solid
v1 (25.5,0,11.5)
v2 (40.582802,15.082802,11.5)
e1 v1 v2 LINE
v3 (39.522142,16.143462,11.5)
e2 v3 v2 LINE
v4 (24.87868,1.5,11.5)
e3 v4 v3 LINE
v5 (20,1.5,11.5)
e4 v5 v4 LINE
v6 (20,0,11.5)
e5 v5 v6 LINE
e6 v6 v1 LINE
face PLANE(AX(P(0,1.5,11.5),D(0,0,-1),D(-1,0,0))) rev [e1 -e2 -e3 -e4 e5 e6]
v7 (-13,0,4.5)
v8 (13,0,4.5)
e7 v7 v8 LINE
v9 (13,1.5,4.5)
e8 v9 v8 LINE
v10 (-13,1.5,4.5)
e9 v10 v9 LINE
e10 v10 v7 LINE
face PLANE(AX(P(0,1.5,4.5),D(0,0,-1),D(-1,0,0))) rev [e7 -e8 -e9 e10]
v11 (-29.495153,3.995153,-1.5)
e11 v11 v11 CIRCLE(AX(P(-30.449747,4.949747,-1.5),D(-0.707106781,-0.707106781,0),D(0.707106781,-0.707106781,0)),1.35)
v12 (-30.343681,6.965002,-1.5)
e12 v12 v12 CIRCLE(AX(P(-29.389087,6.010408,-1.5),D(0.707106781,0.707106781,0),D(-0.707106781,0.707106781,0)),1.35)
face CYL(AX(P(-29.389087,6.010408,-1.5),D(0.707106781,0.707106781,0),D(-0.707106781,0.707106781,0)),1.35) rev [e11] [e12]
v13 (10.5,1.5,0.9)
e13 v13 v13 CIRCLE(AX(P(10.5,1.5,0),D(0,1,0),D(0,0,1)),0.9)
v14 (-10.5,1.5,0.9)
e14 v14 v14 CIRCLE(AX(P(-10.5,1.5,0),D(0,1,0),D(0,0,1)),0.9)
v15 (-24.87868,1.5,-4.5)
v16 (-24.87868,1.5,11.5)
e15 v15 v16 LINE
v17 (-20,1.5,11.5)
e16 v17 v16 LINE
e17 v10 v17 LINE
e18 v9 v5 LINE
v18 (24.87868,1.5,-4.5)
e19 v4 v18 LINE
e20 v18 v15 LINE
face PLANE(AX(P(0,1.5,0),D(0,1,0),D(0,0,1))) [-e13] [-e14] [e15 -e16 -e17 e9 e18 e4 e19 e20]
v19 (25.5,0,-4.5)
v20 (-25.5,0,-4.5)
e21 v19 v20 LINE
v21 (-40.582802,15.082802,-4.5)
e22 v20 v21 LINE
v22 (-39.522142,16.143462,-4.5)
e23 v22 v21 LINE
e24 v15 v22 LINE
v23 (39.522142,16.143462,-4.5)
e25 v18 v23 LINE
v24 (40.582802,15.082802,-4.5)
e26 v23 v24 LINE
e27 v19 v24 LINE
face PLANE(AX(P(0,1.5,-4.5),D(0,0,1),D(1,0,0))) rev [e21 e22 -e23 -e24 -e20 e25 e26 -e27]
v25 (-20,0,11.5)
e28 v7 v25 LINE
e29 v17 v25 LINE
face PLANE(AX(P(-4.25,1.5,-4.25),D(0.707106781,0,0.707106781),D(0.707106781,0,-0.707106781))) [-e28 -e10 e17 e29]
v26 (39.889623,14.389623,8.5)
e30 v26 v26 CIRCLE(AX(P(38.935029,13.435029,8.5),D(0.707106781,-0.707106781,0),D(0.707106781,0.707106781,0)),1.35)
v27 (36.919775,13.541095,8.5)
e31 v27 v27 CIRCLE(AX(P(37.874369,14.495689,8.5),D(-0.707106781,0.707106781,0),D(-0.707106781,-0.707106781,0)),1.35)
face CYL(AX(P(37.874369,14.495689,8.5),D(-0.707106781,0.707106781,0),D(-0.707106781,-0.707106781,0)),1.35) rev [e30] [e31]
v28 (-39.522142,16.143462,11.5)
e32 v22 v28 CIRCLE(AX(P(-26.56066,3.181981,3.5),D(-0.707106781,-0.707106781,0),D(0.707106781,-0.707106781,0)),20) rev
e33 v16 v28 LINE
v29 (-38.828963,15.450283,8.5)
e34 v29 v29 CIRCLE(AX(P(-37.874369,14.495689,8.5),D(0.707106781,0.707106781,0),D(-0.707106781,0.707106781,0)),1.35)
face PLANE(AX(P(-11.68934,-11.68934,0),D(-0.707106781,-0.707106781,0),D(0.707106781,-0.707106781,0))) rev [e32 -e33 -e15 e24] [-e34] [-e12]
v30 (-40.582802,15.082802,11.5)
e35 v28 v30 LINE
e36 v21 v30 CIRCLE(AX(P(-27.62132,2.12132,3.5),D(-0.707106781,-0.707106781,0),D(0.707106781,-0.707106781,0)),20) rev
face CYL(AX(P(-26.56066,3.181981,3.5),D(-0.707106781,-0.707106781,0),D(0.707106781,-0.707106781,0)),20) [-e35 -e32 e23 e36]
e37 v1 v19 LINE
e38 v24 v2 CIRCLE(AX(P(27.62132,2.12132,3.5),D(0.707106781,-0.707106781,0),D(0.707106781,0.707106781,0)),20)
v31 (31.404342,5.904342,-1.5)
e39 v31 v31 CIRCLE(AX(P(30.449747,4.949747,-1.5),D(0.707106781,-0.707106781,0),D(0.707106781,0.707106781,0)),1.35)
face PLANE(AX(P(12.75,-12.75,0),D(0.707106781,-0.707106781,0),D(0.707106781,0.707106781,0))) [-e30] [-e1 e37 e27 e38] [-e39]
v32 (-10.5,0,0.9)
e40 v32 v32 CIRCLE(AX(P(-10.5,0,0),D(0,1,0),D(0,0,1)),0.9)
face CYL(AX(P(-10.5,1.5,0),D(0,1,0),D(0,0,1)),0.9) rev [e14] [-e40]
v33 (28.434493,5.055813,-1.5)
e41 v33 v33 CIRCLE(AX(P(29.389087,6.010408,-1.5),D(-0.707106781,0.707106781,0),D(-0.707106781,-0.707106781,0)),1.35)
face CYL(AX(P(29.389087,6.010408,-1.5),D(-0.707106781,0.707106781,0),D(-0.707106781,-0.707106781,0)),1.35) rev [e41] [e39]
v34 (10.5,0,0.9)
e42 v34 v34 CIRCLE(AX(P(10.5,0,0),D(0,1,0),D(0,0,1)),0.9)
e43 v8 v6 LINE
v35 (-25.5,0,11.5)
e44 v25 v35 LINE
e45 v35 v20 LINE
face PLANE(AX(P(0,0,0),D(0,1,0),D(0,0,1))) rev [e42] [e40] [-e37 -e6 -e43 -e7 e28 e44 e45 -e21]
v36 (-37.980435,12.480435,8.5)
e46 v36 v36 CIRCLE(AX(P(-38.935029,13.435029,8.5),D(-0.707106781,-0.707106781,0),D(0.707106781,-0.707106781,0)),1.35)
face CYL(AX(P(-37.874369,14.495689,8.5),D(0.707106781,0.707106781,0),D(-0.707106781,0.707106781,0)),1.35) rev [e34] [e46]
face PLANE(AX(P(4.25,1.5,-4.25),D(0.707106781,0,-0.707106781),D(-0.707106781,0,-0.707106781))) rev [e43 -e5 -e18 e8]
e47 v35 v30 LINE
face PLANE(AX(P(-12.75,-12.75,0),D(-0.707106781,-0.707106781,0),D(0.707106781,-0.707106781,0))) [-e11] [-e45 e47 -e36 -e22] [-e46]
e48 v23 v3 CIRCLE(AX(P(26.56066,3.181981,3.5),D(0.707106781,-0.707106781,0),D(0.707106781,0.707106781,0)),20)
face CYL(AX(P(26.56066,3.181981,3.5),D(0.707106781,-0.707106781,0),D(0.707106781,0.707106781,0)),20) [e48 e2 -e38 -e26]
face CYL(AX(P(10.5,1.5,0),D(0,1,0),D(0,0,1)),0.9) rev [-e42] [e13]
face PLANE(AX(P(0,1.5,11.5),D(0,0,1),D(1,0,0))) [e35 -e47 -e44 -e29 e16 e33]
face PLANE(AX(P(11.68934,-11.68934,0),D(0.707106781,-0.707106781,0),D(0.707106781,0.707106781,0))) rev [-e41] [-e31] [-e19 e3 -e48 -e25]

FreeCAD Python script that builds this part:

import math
import FreeCAD as App
import Part
import Sketcher
from FreeCAD import Vector
Q = App.Units.Quantity

doc = App.newDocument("Part")
body = doc.addObject("PartDesign::Body", "Body")

# Sketch on XZ plane
sketch1 = body.newObject("Sketcher::SketchObject", "Sketch")
sketch1.AttachmentSupport = (doc.getObject("XZ_Plane"), [""])
sketch1.MapMode = "FlatFace"
sketch1.addGeometry([
    Part.LineSegment(Vector(-26, -4, 0), Vector(-26, 12, 0)),  # 0
    Part.LineSegment(Vector(-26, 12, 0), Vector(-20, 12, 0)),  # 1
    Part.LineSegment(Vector(-20, 12, 0), Vector(-13, 4, 0)),  # 2
    Part.LineSegment(Vector(-13, 4, 0), Vector(13, 4, 0)),  # 3
    Part.LineSegment(Vector(13, 4, 0), Vector(20, 12, 0)),  # 4
    Part.LineSegment(Vector(20, 12, 0), Vector(26, 12, 0)),  # 5
    Part.LineSegment(Vector(26, 12, 0), Vector(26, -4, 0)),  # 6
    Part.LineSegment(Vector(26, -4, 0), Vector(-26, -4, 0)),  # 7
], False)
sketch1.addConstraint([
    Sketcher.Constraint("Coincident", 0, 2, 1, 1),
    Sketcher.Constraint("Coincident", 1, 2, 2, 1),
    Sketcher.Constraint("Coincident", 2, 2, 3, 1),
    Sketcher.Constraint("Coincident", 3, 2, 4, 1),
    Sketcher.Constraint("Coincident", 4, 2, 5, 1),
    Sketcher.Constraint("Coincident", 5, 2, 6, 1),
    Sketcher.Constraint("Coincident", 6, 2, 7, 1),
    Sketcher.Constraint("Coincident", 7, 2, 0, 1),
    Sketcher.Constraint("Vertical", 0),
    Sketcher.Constraint("Horizontal", 1),
    Sketcher.Constraint("Horizontal", 3),
    Sketcher.Constraint("Horizontal", 5),
    Sketcher.Constraint("Vertical", 6),
    Sketcher.Constraint("Horizontal", 7),
    Sketcher.Constraint("Symmetric", 1, 2, 4, 2, -2),
    Sketcher.Constraint("Perpendicular", 2, 4),
    Sketcher.Constraint("Equal", 1, 5),
    Sketcher.Constraint("Equal", 2, 4),
    Sketcher.Constraint("DistanceX", 3, 1, 3, 2, Q("26 mm")),
    Sketcher.Constraint("DistanceX", 7, 2, 7, 1, Q("51 mm")),
    Sketcher.Constraint("DistanceY", 0, 1, 0, 2, Q("16 mm")),
    Sketcher.Constraint("DistanceX", 1, 1, 1, 2, Q("5.5 mm")),
    Sketcher.Constraint("DistanceY", -1, 1, 0, 2, Q("11.5 mm")),
])
pad1 = body.newObject("PartDesign::Pad", "Pad")
pad1.Profile = sketch1
pad1.Length = 1.5
pad1.Reversed = True

# Sketch on an angled plane
sketch2 = body.newObject("Sketcher::SketchObject", "Sketch001")
sketch2.Placement = App.Placement(Vector(12.75, -12.75, 0), App.Rotation(Vector(0, 0, -1), Vector(0.707106781, 0.707106781, 0), Vector(0.707106781, -0.707106781, 0), "ZXY"))
sketch2.addGeometry([
    Part.ArcOfCircle(Part.Circle(Vector(-4, 21, 0), Vector(0, 0, 1), 20), math.radians(66), math.radians(114)),
    Part.LineSegment(Vector(-12, 39, 0), Vector(-12, 18, 0)),
    Part.LineSegment(Vector(-12, 18, 0), Vector(4, 18, 0)),
    Part.LineSegment(Vector(4, 18, 0), Vector(4, 39, 0)),
], False)
sketch2.addConstraint([
    Sketcher.Constraint("Coincident", 0, 2, 1, 1),
    Sketcher.Constraint("Coincident", 1, 2, 2, 1),
    Sketcher.Constraint("Coincident", 2, 2, 3, 1),
    Sketcher.Constraint("Coincident", 3, 2, 0, 1),
    Sketcher.Constraint("Vertical", 1),
    Sketcher.Constraint("Horizontal", 2),
    Sketcher.Constraint("Vertical", 3),
    Sketcher.Constraint("Horizontal", 0, 2, 3, 2),
    Sketcher.Constraint("Radius", 0, Q("20 mm")),
    Sketcher.Constraint("DistanceX", 2, 1, 2, 2, Q("16 mm")),
    Sketcher.Constraint("DistanceY", 1, 2, 0, 3, Q("3 mm")),
    Sketcher.Constraint("DistanceX", 0, 3, -1, 1, Q("3.5 mm")),
    Sketcher.Constraint("DistanceY", -1, 1, 0, 3, Q("21.031223 mm")),
])
pad2 = body.newObject("PartDesign::Pad", "Pad001")
pad2.Profile = sketch2
pad2.Length = 1.5
pad2.Reversed = True

# Sketch on an angled plane
sketch3 = body.newObject("Sketcher::SketchObject", "Sketch002")
sketch3.Placement = App.Placement(Vector(-12.75, -12.75, 0), App.Rotation(Vector(0, 0, -1), Vector(0.707106781, -0.707106781, 0), Vector(-0.707106781, -0.707106781, 0), "ZXY"))
sketch3.addGeometry([
    Part.LineSegment(Vector(-12, -18, 0), Vector(-12, -39, 0)),
    Part.ArcOfCircle(Part.Circle(Vector(-4, -21, 0), Vector(0, 0, 1), 20), math.radians(-114), math.radians(-66)),
    Part.LineSegment(Vector(4, -39, 0), Vector(4, -18, 0)),
    Part.LineSegment(Vector(4, -18, 0), Vector(-12, -18, 0)),
], False)
sketch3.addConstraint([
    Sketcher.Constraint("Coincident", 0, 2, 1, 1),
    Sketcher.Constraint("Coincident", 1, 2, 2, 1),
    Sketcher.Constraint("Coincident", 2, 2, 3, 1),
    Sketcher.Constraint("Coincident", 3, 2, 0, 1),
    Sketcher.Constraint("Vertical", 0),
    Sketcher.Constraint("Vertical", 2),
    Sketcher.Constraint("Horizontal", 3),
    Sketcher.Constraint("Horizontal", 0, 2, 1, 2),
    Sketcher.Constraint("Radius", 1, Q("20 mm")),
    Sketcher.Constraint("DistanceX", 3, 2, 3, 1, Q("16 mm")),
    Sketcher.Constraint("DistanceY", 1, 3, 2, 2, Q("3 mm")),
    Sketcher.Constraint("DistanceX", 1, 3, -1, 1, Q("3.5 mm")),
    Sketcher.Constraint("DistanceY", 1, 3, -1, 1, Q("21.031223 mm")),
])
pad3 = body.newObject("PartDesign::Pad", "Pad002")
pad3.Profile = sketch3
pad3.Length = 1.5
pad3.Reversed = True

# Sketch on an angled plane
sketch4 = body.newObject("Sketcher::SketchObject", "Sketch003")
sketch4.Placement = App.Placement(Vector(-11.68934, -11.68934, 0), App.Rotation(Vector(0.707106781, -0.707106781, 0), Vector(0, 0, -0.999999999), Vector(0.707106781, 0.707106781, 0), "ZXY"))
sketch4.addGeometry([
    Part.Circle(Vector(-37, -8.5, 0), Vector(0, 0, 1), 1.4),
    Part.Circle(Vector(-25, 1.5, 0), Vector(0, 0, 1), 1.4),
], False)
sketch4.addConstraint([
    Sketcher.Constraint("Equal", 0, 1),
    Sketcher.Constraint("Diameter", 0, Q("2.7 mm")),
    Sketcher.Constraint("DistanceX", 0, 3, 1, 3, Q("12 mm")),
    Sketcher.Constraint("DistanceY", 0, 3, 1, 3, Q("10 mm")),
    Sketcher.Constraint("DistanceY", 0, 3, -1, 1, Q("8.5 mm")),
    Sketcher.Constraint("DistanceX", 0, 3, -1, 1, Q("37.031223 mm")),
])
doc.recompute()
hole = body.newObject("PartDesign::Hole", "Hole")
hole.Profile = sketch4
hole.ThreadType = "None"
hole.Diameter = 2.7
hole.DepthType = "ThroughAll"

# Sketch on an angled plane
sketch5 = body.newObject("Sketcher::SketchObject", "Sketch004")
sketch5.Placement = App.Placement(Vector(11.68934, -11.68934, 0), App.Rotation(Vector(0.707106781, 0.707106781, 0), Vector(0, 0, -0.999999999), Vector(-0.707106781, 0.707106781, 0), "ZXY"))
sketch5.addGeometry([
    Part.Circle(Vector(25, 1.5, 0), Vector(0, 0, 1), 1.4),
    Part.Circle(Vector(37, -8.5, 0), Vector(0, 0, 1), 1.4),
], False)
sketch5.addConstraint([
    Sketcher.Constraint("Equal", 0, 1),
    Sketcher.Constraint("Diameter", 0, Q("2.7 mm")),
    Sketcher.Constraint("DistanceX", 0, 3, 1, 3, Q("12 mm")),
    Sketcher.Constraint("DistanceY", 1, 3, 0, 3, Q("10 mm")),
    Sketcher.Constraint("DistanceY", -1, 1, 0, 3, Q("1.5 mm")),
    Sketcher.Constraint("DistanceX", -1, 1, 0, 3, Q("25.031223 mm")),
])
doc.recompute()
hole2 = body.newObject("PartDesign::Hole", "Hole001")
hole2.Profile = sketch5
hole2.ThreadType = "None"
hole2.Diameter = 2.7
hole2.DepthType = "ThroughAll"

# Sketch on XZ plane
sketch6 = body.newObject("Sketcher::SketchObject", "Sketch005")
sketch6.AttachmentSupport = (doc.getObject("XZ_Plane"), [""])
sketch6.MapMode = "FlatFace"
sketch6.AttachmentOffset = App.Placement(Vector(0, 0, -1.5), App.Rotation())
sketch6.addGeometry([
    Part.Circle(Vector(-10.5, 0, 0), Vector(0, 0, 1), 0.9),
    Part.Circle(Vector(10.5, 0, 0), Vector(0, 0, 1), 0.9),
], False)
sketch6.addConstraint([
    Sketcher.Constraint("Equal", 0, 1),
    Sketcher.Constraint("Symmetric", 0, 3, 1, 3, -1, 1),
    Sketcher.Constraint("PointOnObject", 0, 3, -1),
    Sketcher.Constraint("Diameter", 0, Q("1.8 mm")),
    Sketcher.Constraint("DistanceX", 0, 3, 1, 3, Q("21 mm")),
])
doc.recompute()
hole3 = body.newObject("PartDesign::Hole", "Hole002")
hole3.Profile = sketch6
hole3.ThreadType = "None"
hole3.Diameter = 1.8
hole3.DepthType = "ThroughAll"
hole3.Reversed = True

doc.recompute()
